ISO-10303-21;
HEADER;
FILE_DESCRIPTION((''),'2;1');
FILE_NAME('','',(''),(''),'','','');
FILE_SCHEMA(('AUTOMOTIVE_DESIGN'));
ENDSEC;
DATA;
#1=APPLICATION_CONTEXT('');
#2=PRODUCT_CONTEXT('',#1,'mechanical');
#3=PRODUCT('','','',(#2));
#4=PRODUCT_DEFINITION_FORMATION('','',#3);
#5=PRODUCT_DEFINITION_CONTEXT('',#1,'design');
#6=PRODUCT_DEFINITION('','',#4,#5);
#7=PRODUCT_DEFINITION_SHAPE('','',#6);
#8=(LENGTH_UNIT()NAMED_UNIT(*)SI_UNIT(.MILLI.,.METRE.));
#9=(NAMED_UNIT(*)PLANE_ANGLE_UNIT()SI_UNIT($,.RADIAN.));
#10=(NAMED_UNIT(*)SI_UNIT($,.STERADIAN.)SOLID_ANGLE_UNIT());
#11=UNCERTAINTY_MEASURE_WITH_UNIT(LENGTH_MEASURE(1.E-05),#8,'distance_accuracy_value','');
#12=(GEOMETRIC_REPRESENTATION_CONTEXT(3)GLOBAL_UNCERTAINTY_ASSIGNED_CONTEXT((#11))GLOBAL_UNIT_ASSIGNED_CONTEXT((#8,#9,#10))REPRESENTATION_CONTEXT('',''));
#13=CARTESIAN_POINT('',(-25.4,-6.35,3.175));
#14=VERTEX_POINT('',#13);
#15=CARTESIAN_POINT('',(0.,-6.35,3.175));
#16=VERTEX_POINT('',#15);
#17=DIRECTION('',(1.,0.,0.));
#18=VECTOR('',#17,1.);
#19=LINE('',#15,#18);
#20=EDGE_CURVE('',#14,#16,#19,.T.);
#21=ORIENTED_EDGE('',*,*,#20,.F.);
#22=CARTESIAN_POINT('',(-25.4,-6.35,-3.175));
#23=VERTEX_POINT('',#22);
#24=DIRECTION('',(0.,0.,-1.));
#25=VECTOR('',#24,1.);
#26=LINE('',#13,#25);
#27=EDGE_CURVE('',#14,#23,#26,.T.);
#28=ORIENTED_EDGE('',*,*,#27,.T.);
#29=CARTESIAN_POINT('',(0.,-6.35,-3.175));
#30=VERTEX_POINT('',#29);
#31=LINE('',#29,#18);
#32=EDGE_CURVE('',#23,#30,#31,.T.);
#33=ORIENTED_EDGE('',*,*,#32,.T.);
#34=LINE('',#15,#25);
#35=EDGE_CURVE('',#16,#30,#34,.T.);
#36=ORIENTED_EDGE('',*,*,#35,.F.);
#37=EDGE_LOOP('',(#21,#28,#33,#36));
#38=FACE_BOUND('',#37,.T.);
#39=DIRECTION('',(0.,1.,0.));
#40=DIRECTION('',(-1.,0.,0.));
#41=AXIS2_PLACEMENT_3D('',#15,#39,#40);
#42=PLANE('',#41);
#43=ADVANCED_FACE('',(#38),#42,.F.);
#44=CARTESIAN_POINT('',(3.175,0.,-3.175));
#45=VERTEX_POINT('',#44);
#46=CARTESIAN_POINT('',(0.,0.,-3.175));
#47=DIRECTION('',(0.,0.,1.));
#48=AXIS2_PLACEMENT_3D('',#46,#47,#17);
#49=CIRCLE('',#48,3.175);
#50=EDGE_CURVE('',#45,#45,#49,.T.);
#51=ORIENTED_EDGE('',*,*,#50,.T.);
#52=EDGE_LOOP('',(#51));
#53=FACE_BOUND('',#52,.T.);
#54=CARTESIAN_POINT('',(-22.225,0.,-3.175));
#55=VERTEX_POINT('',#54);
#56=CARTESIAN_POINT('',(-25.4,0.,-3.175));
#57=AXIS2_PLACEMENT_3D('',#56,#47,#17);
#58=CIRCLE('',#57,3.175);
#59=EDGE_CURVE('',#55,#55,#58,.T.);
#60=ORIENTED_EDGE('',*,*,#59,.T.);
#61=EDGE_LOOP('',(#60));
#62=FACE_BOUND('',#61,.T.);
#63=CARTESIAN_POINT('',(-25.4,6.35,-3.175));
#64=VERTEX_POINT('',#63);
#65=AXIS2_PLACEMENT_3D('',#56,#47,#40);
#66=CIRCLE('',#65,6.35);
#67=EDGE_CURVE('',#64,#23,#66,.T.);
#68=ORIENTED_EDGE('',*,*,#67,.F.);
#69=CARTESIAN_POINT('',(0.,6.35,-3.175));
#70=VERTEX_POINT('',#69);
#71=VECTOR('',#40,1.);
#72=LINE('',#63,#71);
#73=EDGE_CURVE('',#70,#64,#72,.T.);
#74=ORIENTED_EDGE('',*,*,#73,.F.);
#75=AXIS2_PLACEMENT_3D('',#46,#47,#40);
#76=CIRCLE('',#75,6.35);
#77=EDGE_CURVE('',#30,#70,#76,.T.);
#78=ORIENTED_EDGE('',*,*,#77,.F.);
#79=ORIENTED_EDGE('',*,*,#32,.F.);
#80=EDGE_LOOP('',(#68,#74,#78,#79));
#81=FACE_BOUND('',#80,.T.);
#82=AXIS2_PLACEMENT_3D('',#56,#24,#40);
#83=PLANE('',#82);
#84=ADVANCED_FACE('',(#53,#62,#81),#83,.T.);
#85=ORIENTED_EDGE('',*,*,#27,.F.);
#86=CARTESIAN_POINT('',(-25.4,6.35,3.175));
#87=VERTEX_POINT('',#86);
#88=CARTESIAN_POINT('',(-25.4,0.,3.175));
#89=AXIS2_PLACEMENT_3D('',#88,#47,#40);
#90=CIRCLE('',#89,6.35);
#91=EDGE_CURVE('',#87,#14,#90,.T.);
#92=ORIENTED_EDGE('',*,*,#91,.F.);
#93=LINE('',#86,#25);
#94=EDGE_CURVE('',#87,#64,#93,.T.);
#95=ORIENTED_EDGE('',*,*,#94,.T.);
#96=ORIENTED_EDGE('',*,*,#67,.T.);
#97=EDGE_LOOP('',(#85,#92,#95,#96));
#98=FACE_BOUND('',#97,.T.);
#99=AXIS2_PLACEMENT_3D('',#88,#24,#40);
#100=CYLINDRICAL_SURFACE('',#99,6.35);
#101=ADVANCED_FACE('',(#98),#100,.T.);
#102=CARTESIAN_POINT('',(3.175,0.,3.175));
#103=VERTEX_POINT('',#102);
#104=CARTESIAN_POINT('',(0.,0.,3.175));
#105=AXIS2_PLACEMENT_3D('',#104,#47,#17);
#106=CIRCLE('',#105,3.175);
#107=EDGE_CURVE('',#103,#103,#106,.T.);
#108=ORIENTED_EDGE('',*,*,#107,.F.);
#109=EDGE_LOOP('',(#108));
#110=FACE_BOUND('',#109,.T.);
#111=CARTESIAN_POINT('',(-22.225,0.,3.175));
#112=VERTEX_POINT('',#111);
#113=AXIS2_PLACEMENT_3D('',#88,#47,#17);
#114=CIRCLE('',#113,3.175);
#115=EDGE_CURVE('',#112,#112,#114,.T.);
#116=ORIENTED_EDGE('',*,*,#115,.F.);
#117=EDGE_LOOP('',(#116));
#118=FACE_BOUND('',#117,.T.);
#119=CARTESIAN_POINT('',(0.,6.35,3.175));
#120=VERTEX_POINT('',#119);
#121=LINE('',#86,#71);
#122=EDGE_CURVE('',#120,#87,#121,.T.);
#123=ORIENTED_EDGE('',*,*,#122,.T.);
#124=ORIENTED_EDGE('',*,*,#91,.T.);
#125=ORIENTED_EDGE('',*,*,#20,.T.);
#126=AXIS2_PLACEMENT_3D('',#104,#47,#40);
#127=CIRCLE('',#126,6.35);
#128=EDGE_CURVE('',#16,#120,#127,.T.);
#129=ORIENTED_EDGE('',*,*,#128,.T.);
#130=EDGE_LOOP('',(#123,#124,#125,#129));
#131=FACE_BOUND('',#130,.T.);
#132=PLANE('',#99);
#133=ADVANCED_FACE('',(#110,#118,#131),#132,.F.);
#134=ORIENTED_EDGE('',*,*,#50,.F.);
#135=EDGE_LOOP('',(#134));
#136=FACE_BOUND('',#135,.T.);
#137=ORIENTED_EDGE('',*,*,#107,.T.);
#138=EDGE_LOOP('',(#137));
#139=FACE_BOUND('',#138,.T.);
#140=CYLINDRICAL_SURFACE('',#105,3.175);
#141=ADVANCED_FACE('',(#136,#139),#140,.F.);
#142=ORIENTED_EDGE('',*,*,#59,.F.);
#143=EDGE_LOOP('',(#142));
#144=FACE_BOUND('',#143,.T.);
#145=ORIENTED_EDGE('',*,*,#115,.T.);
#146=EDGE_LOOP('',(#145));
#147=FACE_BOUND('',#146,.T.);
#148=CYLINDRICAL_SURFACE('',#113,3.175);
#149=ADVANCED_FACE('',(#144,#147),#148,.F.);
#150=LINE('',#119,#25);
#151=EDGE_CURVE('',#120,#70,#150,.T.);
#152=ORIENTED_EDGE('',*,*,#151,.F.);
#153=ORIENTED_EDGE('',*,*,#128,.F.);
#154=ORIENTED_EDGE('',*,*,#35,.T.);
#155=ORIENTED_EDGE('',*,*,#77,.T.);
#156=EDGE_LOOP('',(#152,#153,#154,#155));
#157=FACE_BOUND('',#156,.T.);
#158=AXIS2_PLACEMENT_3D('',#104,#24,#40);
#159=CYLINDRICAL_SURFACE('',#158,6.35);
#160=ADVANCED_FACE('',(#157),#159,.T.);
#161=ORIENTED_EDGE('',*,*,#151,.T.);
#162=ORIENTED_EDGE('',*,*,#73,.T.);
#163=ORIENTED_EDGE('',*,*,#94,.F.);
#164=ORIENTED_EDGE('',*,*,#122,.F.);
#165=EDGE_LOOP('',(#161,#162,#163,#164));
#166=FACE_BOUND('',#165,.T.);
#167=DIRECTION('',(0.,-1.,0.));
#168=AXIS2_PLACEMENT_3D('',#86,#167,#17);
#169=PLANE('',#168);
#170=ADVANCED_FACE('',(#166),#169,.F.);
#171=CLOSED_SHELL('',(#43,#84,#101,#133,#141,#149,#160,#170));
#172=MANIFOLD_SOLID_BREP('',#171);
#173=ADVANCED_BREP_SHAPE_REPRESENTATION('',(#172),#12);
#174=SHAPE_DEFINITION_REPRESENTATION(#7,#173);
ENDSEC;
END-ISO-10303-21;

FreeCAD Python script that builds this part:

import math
import FreeCAD as App
import Part
import Sketcher

V = App.Vector
Q = App.Units.Quantity

doc = App.newDocument("Part")
body = doc.addObject("PartDesign::Body", "Body")

sketch1 = body.newObject("Sketcher::SketchObject", "Sketch")
sketch1.AttachmentSupport = (doc.getObject("XY_Plane"), [""])
sketch1.MapMode = "FlatFace"
sketch1.addGeometry(Part.LineSegment(V(0, 6, 0), V(-25, 6, 0)), False)
sketch1.addGeometry(Part.ArcOfCircle(Part.Circle(V(-25, 0, 0), V(0, 0, 1), 6), math.radians(90), math.radians(270)), False)
sketch1.addGeometry(Part.LineSegment(V(-25, -6, 0), V(0, -6, 0)), False)
sketch1.addGeometry(Part.ArcOfCircle(Part.Circle(V(0, 0, 0), V(0, 0, 1), 6), math.radians(-90), math.radians(90)), False)
sketch1.addConstraint(Sketcher.Constraint("Tangent", 0, 2, 1, 1))
sketch1.addConstraint(Sketcher.Constraint("Tangent", 1, 2, 2, 1))
sketch1.addConstraint(Sketcher.Constraint("Tangent", 2, 2, 3, 1))
sketch1.addConstraint(Sketcher.Constraint("Tangent", 3, 2, 0, 1))
sketch1.addConstraint(Sketcher.Constraint("Horizontal", 0))
sketch1.addConstraint(Sketcher.Constraint("Horizontal", 2))
sketch1.addConstraint(Sketcher.Constraint("Coincident", 3, 3, -1, 1))
sketch1.addConstraint(Sketcher.Constraint("DistanceX", 0, 2, 0, 1, Q("1 in")))
sketch1.addConstraint(Sketcher.Constraint("Radius", 1, Q("0.25 in")))
pad1 = body.newObject("PartDesign::Pad", "Pad")
pad1.Profile = sketch1
pad1.Length = Q("0.25 in")
pad1.Midplane = True

sketch2 = body.newObject("Sketcher::SketchObject", "Sketch001")
sketch2.AttachmentSupport = (doc.getObject("XY_Plane"), [""])
sketch2.MapMode = "FlatFace"
sketch2.AttachmentOffset = App.Placement(V(0, 0, 0.125 * 25.4), App.Rotation())
sketch2.addGeometry(Part.Circle(V(-25.4, 0, 0), V(0, 0, 1), 3.2), False)
sketch2.addGeometry(Part.Circle(V(0, 0, 0), V(0, 0, 1), 3.2), False)
sketch2.addConstraint(Sketcher.Constraint("Coincident", 1, 3, -1, 1))
sketch2.addConstraint(Sketcher.Constraint("Equal", 0, 1))
sketch2.addConstraint(Sketcher.Constraint("PointOnObject", 0, 3, -1))
sketch2.addConstraint(Sketcher.Constraint("Diameter", 0, Q("0.25 in")))
sketch2.addConstraint(Sketcher.Constraint("DistanceX", 0, 3, -1, 1, Q("1 in")))
doc.recompute()
hole = body.newObject("PartDesign::Hole", "Hole")
hole.Profile = sketch2
hole.ThreadType = "None"
hole.Diameter = Q("0.25 in")
hole.DepthType = "ThroughAll"

doc.recompute()
